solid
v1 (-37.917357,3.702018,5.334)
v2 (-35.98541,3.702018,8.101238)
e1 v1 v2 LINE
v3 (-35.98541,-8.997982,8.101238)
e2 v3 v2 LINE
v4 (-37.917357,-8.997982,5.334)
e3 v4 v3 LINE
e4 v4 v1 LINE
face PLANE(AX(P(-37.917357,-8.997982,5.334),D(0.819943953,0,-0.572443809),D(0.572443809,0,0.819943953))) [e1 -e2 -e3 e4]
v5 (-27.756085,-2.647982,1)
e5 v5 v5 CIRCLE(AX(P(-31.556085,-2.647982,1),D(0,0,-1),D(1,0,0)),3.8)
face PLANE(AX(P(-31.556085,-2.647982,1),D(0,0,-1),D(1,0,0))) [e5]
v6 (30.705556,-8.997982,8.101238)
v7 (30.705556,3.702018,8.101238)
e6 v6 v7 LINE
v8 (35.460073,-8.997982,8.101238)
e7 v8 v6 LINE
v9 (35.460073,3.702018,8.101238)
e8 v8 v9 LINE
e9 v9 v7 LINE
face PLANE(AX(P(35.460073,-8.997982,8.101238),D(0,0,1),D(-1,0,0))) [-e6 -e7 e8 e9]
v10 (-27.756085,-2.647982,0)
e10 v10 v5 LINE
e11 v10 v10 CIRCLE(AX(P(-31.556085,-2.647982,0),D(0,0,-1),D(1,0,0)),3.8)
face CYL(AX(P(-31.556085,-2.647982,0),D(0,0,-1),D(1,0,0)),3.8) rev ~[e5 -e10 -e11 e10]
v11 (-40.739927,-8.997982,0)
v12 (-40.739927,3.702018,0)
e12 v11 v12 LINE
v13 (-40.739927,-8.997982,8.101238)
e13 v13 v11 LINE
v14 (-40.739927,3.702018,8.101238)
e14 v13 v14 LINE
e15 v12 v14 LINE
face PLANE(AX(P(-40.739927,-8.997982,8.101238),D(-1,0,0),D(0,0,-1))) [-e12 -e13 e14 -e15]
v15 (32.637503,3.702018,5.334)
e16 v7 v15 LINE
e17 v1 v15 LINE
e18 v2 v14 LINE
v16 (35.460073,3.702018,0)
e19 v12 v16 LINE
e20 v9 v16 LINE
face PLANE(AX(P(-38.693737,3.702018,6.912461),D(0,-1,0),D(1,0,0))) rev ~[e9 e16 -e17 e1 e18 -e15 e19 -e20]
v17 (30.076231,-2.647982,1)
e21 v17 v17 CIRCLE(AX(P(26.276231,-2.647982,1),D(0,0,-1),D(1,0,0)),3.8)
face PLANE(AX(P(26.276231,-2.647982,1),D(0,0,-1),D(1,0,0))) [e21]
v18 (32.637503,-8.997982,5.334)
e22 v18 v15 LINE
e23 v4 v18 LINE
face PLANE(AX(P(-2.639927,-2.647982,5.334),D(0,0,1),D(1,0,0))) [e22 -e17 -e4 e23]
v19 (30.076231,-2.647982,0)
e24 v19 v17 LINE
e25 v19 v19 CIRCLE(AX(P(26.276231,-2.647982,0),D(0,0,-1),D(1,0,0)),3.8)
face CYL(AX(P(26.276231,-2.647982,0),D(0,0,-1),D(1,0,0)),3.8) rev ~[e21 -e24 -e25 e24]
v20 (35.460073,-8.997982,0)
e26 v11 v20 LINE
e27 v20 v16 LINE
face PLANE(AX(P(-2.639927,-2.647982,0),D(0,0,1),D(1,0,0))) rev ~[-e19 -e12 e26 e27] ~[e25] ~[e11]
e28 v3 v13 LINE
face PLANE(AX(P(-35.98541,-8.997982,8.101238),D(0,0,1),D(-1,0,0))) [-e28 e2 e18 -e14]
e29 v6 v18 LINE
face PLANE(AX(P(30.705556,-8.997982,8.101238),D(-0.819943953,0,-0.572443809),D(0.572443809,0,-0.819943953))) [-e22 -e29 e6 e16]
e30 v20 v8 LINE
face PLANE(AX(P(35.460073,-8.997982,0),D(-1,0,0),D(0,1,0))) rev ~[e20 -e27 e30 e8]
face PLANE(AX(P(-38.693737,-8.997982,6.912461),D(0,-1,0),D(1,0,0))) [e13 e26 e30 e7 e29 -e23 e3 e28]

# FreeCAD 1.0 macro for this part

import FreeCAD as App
import Part
import Sketcher
from FreeCAD import Vector
Q = App.Units.Quantity


def add_polygon(sketch, points):
    """Adds a closed chain of lines whose ends are joined by coincident constraints."""
    first, n = sketch.GeometryCount, len(points)
    for a, b in zip(points, points[1:] + points[:1]):
        sketch.addGeometry(Part.LineSegment(App.Vector(*a, 0), App.Vector(*b, 0)), False)
    for i in range(n):
        sketch.addConstraint(Sketcher.Constraint("Coincident", first + i, 2, first + (i + 1) % n, 1))

doc = App.newDocument("Part")
body = doc.addObject("PartDesign::Body", "Body")

# Sketch on XY plane
sketch1 = body.newObject("Sketcher::SketchObject", "Sketch")
sketch1.AttachmentSupport = (doc.getObject("XY_Plane"), [""])
sketch1.MapMode = "FlatFace"
add_polygon(sketch1, [(-41, 4), (-41, -9), (35, -9), (35, 4)])  # lines 0-3
sketch1.addConstraint(Sketcher.Constraint("Vertical", 0))
sketch1.addConstraint(Sketcher.Constraint("Horizontal", 1))
sketch1.addConstraint(Sketcher.Constraint("Vertical", 2))
sketch1.addConstraint(Sketcher.Constraint("Horizontal", 3))
sketch1.addConstraint(Sketcher.Constraint("DistanceX", 1, 1, 1, 2, Q("3 in")))
sketch1.addConstraint(Sketcher.Constraint("DistanceY", 0, 2, 0, 1, Q("0.5 in")))
sketch1.addConstraint(Sketcher.Constraint("DistanceX", 0, 2, -1, 1, 40.739927))
sketch1.addConstraint(Sketcher.Constraint("DistanceY", 0, 2, -1, 1, 8.997982))
pad1 = body.newObject("PartDesign::Pad", "Pad")
pad1.Profile = sketch1
pad1.Length = Q("0.21 in")

# Sketch on XZ plane
sketch2 = body.newObject("Sketcher::SketchObject", "Sketch001")
sketch2.AttachmentSupport = (doc.getObject("XZ_Plane"), [""])
sketch2.MapMode = "FlatFace"
sketch2.AttachmentOffset = App.Placement(Vector(0, 0, 8.997982), App.Rotation())
add_polygon(sketch2, [(-40.7, 5.3), (-37.9, 5.3), (-36, 8.1), (-40.7, 8.1)])  # lines 0-3
add_polygon(sketch2, [(30.7, 8.1), (32.6, 5.3), (35.5, 5.3), (35.5, 8.1)])  # lines 4-7
sketch2.addConstraint(Sketcher.Constraint("Horizontal", 0))
sketch2.addConstraint(Sketcher.Constraint("Horizontal", 2))
sketch2.addConstraint(Sketcher.Constraint("Vertical", 3))
sketch2.addConstraint(Sketcher.Constraint("Horizontal", 5))
sketch2.addConstraint(Sketcher.Constraint("Vertical", 6))
sketch2.addConstraint(Sketcher.Constraint("Horizontal", 7))
sketch2.addConstraint(Sketcher.Constraint("Horizontal", 3, 2, 4, 2))
sketch2.addConstraint(Sketcher.Constraint("Horizontal", 2, 2, 6, 2))
sketch2.addConstraint(Sketcher.Constraint("Equal", 0, 5))
sketch2.addConstraint(Sketcher.Constraint("Equal", 2, 7))
sketch2.addConstraint(Sketcher.Constraint("DistanceX", 3, 2, 5, 2, Q("3 in")))
sketch2.addConstraint(Sketcher.Constraint("DistanceY", -1, 1, 0, 2, Q("0.21 in")))
sketch2.addConstraint(Sketcher.Constraint("DistanceX", 0, 1, 0, 2, 2.82257))
sketch2.addConstraint(Sketcher.Constraint("DistanceY", 3, 2, 3, 1, 2.767238))
sketch2.addConstraint(Sketcher.Constraint("Distance", 1, 3.374911))
sketch2.addConstraint(Sketcher.Constraint("DistanceX", 1, 2, -1, 1, 35.98541))
pad2 = body.newObject("PartDesign::Pad", "Pad001")
pad2.Profile = sketch2
pad2.Length = Q("0.5 in")
pad2.Reversed = True

# Sketch on XY plane
sketch3 = body.newObject("Sketcher::SketchObject", "Sketch002")
sketch3.AttachmentSupport = (doc.getObject("XY_Plane"), [""])
sketch3.MapMode = "FlatFace"
sketch3.addGeometry(Part.Circle(Vector(-31.6, -2.6, 0), Vector(0, 0, 1), 3.8), False)
sketch3.addGeometry(Part.Circle(Vector(26.3, -2.6, 0), Vector(0, 0, 1), 3.8), False)
sketch3.addConstraint(Sketcher.Constraint("Equal", 0, 1))
sketch3.addConstraint(Sketcher.Constraint("Horizontal", 0, 3, 1, 3))
sketch3.addConstraint(Sketcher.Constraint("Diameter", 0, 7.6))
sketch3.addConstraint(Sketcher.Constraint("DistanceY", 0, 3, -1, 1, 2.647982))
sketch3.addConstraint(Sketcher.Constraint("DistanceX", -1, 1, 1, 3, 26.276231))
sketch3.addConstraint(Sketcher.Constraint("DistanceX", 0, 3, -1, 1, 31.556085))
pocket1 = body.newObject("PartDesign::Pocket", "Pocket")
pocket1.Profile = sketch3
pocket1.Length = 1
pocket1.Reversed = True

doc.recompute()
